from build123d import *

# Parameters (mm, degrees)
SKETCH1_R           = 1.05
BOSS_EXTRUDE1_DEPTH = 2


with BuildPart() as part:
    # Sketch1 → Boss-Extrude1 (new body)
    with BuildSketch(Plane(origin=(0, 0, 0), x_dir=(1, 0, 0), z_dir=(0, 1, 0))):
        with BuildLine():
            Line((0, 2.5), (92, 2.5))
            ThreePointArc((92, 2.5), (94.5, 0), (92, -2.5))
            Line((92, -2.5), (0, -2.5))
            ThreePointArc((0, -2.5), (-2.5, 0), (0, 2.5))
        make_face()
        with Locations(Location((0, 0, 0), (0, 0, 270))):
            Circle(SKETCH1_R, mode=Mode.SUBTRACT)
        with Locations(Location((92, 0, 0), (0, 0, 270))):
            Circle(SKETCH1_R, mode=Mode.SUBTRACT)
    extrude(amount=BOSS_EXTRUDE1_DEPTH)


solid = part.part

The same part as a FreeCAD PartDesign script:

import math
import FreeCAD as App
import Part
import Sketcher

doc = App.newDocument("Part")
body = doc.addObject("PartDesign::Body", "Body")

# Sketch on XZ plane
sketch1 = body.newObject("Sketcher::SketchObject", "Sketch")
sketch1.AttachmentSupport = (doc.getObject("XZ_Plane"), [""])
sketch1.MapMode = "FlatFace"
sketch1.addGeometry(Part.LineSegment(App.Vector(92, -2.5, 0), App.Vector(0, -2.5, 0)), False)
sketch1.addGeometry(Part.ArcOfCircle(Part.Circle(App.Vector(0, 0, 0), App.Vector(0, 0, 1), 2.5), math.radians(90), math.radians(270)), False)
sketch1.addGeometry(Part.LineSegment(App.Vector(0, 2.5, 0), App.Vector(92, 2.5, 0)), False)
sketch1.addGeometry(Part.ArcOfCircle(Part.Circle(App.Vector(92, 0, 0), App.Vector(0, 0, 1), 2.5), math.radians(-90), math.radians(90)), False)
sketch1.addGeometry(Part.Circle(App.Vector(92, 0, 0), App.Vector(0, 0, 1), 1.1), False)
sketch1.addGeometry(Part.Circle(App.Vector(0, 0, 0), App.Vector(0, 0, 1), 1.1), False)
sketch1.addConstraint(Sketcher.Constraint("Tangent", 0, 2, 1, 2))
sketch1.addConstraint(Sketcher.Constraint("Tangent", 1, 1, 2, 1))
sketch1.addConstraint(Sketcher.Constraint("Tangent", 2, 2, 3, 2))
sketch1.addConstraint(Sketcher.Constraint("Tangent", 3, 1, 0, 1))
sketch1.addConstraint(Sketcher.Constraint("Horizontal", 0))
sketch1.addConstraint(Sketcher.Constraint("Horizontal", 2))
sketch1.addConstraint(Sketcher.Constraint("Coincident", 1, 3, -1, 1))
sketch1.addConstraint(Sketcher.Constraint("Coincident", 5, 3, -1, 1))
sketch1.addConstraint(Sketcher.Constraint("Coincident", 4, 3, 3, 3))
sketch1.addConstraint(Sketcher.Constraint("Equal", 4, 5))
sketch1.addConstraint(Sketcher.Constraint("Diameter", 4, 2.1))
sketch1.addConstraint(Sketcher.Constraint("Radius", 1, 2.5))
sketch1.addConstraint(Sketcher.Constraint("DistanceX", 0, 2, 0, 1, 92.0))
pad1 = body.newObject("PartDesign::Pad", "Pad")
pad1.Profile = sketch1
pad1.Length = 2
pad1.Reversed = True

doc.recompute()
